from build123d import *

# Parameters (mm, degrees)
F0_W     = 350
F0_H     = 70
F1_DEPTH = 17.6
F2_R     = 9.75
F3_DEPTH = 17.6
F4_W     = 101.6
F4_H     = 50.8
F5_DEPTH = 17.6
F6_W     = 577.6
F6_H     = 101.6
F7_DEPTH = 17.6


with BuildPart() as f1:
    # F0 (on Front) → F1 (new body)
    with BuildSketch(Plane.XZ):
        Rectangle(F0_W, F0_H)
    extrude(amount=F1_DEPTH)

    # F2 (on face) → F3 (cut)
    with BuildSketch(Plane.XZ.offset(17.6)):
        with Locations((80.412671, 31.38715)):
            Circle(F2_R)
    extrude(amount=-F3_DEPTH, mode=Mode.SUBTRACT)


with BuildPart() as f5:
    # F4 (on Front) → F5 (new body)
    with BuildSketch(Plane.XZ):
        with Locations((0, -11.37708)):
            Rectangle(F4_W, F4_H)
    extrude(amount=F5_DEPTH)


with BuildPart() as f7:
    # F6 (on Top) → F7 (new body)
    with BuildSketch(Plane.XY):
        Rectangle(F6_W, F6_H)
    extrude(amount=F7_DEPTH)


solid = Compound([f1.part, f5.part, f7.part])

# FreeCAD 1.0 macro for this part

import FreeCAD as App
import Part
import Sketcher

V = App.Vector
Q = App.Units.Quantity


def add_polygon(sketch, points):
    """Adds a closed chain of lines whose ends are joined by coincident constraints."""
    first, n = sketch.GeometryCount, len(points)
    for a, b in zip(points, points[1:] + points[:1]):
        sketch.addGeometry(Part.LineSegment(App.Vector(*a, 0), App.Vector(*b, 0)), False)
    for i in range(n):
        sketch.addConstraint(Sketcher.Constraint("Coincident", first + i, 2, first + (i + 1) % n, 1))

doc = App.newDocument("Part")
body = doc.addObject("PartDesign::Body", "Body")

# Sketch on XZ plane
sketch1 = body.newObject("Sketcher::SketchObject", "Sketch")
sketch1.AttachmentSupport = (doc.getObject("XZ_Plane"), [""])
sketch1.MapMode = "FlatFace"
add_polygon(sketch1, [(-175, 35), (-175, -35), (175, -35), (175, 35)])  # lines 0-3
sketch1.addConstraint([
    Sketcher.Constraint("Vertical", 0),
    Sketcher.Constraint("Horizontal", 1),
    Sketcher.Constraint("Vertical", 2),
    Sketcher.Constraint("Horizontal", 3),
    Sketcher.Constraint("Symmetric", 0, 2, 2, 2, -1, 1),
    Sketcher.Constraint("DistanceX", 1, 1, 1, 2, Q("350 mm")),
    Sketcher.Constraint("DistanceY", 0, 2, 0, 1, Q("70 mm")),
])
pad1 = body.newObject("PartDesign::Pad", "Pad")
pad1.Profile = sketch1
pad1.Length = 17.6

# Sketch on XZ plane
sketch2 = body.newObject("Sketcher::SketchObject", "Sketch001")
sketch2.AttachmentSupport = (doc.getObject("XZ_Plane"), [""])
sketch2.MapMode = "FlatFace"
sketch2.AttachmentOffset = App.Placement(V(0, 0, 17.6), App.Rotation())
sketch2.addGeometry(Part.Circle(V(80, 31, 0), V(0, 0, 1), 10), False)
sketch2.addConstraint([
    Sketcher.Constraint("Diameter", 0, Q("19.5 mm")),
    Sketcher.Constraint("DistanceX", -1, 1, 0, 3, Q("80.412671 mm")),
    Sketcher.Constraint("DistanceY", -1, 1, 0, 3, Q("31.38715 mm")),
])
pocket1 = body.newObject("PartDesign::Pocket", "Pocket")
pocket1.Profile = sketch2
pocket1.Length = 17.6
body2 = doc.addObject("PartDesign::Body", "Body001")

# Sketch on XZ plane
sketch3 = body2.newObject("Sketcher::SketchObject", "Sketch002")
sketch3.AttachmentSupport = (doc.getObject("XZ_Plane001"), [""])
sketch3.MapMode = "FlatFace"
add_polygon(sketch3, [(-51, 14), (-51, -37), (51, -37), (51, 14)])  # lines 0-3
sketch3.addConstraint([
    Sketcher.Constraint("Vertical", 0),
    Sketcher.Constraint("Horizontal", 1),
    Sketcher.Constraint("Vertical", 2),
    Sketcher.Constraint("Horizontal", 3),
    Sketcher.Constraint("DistanceX", 1, 1, 1, 2, Q("101.6 mm")),
    Sketcher.Constraint("DistanceY", 0, 2, 0, 1, Q("50.8 mm")),
    Sketcher.Constraint("DistanceX", 0, 2, -1, 1, Q("50.8 mm")),
    Sketcher.Constraint("DistanceY", 0, 2, -1, 1, Q("36.77708 mm")),
])
pad2 = body2.newObject("PartDesign::Pad", "Pad001")
pad2.Profile = sketch3
pad2.Length = 17.6
body3 = doc.addObject("PartDesign::Body", "Body002")

# Sketch on XY plane
sketch4 = body3.newObject("Sketcher::SketchObject", "Sketch003")
sketch4.AttachmentSupport = (doc.getObject("XY_Plane002"), [""])
sketch4.MapMode = "FlatFace"
add_polygon(sketch4, [(-289, 51), (-289, -51), (289, -51), (289, 51)])  # lines 0-3
sketch4.addConstraint([
    Sketcher.Constraint("Vertical", 0),
    Sketcher.Constraint("Horizontal", 1),
    Sketcher.Constraint("Vertical", 2),
    Sketcher.Constraint("Horizontal", 3),
    Sketcher.Constraint("Symmetric", 0, 2, 2, 2, -1, 1),
    Sketcher.Constraint("DistanceX", 1, 1, 1, 2, Q("577.6 mm")),
    Sketcher.Constraint("DistanceY", 0, 2, 0, 1, Q("101.6 mm")),
])
pad3 = body3.newObject("PartDesign::Pad", "Pad002")
pad3.Profile = sketch4
pad3.Length = 17.6

doc.recompute()
